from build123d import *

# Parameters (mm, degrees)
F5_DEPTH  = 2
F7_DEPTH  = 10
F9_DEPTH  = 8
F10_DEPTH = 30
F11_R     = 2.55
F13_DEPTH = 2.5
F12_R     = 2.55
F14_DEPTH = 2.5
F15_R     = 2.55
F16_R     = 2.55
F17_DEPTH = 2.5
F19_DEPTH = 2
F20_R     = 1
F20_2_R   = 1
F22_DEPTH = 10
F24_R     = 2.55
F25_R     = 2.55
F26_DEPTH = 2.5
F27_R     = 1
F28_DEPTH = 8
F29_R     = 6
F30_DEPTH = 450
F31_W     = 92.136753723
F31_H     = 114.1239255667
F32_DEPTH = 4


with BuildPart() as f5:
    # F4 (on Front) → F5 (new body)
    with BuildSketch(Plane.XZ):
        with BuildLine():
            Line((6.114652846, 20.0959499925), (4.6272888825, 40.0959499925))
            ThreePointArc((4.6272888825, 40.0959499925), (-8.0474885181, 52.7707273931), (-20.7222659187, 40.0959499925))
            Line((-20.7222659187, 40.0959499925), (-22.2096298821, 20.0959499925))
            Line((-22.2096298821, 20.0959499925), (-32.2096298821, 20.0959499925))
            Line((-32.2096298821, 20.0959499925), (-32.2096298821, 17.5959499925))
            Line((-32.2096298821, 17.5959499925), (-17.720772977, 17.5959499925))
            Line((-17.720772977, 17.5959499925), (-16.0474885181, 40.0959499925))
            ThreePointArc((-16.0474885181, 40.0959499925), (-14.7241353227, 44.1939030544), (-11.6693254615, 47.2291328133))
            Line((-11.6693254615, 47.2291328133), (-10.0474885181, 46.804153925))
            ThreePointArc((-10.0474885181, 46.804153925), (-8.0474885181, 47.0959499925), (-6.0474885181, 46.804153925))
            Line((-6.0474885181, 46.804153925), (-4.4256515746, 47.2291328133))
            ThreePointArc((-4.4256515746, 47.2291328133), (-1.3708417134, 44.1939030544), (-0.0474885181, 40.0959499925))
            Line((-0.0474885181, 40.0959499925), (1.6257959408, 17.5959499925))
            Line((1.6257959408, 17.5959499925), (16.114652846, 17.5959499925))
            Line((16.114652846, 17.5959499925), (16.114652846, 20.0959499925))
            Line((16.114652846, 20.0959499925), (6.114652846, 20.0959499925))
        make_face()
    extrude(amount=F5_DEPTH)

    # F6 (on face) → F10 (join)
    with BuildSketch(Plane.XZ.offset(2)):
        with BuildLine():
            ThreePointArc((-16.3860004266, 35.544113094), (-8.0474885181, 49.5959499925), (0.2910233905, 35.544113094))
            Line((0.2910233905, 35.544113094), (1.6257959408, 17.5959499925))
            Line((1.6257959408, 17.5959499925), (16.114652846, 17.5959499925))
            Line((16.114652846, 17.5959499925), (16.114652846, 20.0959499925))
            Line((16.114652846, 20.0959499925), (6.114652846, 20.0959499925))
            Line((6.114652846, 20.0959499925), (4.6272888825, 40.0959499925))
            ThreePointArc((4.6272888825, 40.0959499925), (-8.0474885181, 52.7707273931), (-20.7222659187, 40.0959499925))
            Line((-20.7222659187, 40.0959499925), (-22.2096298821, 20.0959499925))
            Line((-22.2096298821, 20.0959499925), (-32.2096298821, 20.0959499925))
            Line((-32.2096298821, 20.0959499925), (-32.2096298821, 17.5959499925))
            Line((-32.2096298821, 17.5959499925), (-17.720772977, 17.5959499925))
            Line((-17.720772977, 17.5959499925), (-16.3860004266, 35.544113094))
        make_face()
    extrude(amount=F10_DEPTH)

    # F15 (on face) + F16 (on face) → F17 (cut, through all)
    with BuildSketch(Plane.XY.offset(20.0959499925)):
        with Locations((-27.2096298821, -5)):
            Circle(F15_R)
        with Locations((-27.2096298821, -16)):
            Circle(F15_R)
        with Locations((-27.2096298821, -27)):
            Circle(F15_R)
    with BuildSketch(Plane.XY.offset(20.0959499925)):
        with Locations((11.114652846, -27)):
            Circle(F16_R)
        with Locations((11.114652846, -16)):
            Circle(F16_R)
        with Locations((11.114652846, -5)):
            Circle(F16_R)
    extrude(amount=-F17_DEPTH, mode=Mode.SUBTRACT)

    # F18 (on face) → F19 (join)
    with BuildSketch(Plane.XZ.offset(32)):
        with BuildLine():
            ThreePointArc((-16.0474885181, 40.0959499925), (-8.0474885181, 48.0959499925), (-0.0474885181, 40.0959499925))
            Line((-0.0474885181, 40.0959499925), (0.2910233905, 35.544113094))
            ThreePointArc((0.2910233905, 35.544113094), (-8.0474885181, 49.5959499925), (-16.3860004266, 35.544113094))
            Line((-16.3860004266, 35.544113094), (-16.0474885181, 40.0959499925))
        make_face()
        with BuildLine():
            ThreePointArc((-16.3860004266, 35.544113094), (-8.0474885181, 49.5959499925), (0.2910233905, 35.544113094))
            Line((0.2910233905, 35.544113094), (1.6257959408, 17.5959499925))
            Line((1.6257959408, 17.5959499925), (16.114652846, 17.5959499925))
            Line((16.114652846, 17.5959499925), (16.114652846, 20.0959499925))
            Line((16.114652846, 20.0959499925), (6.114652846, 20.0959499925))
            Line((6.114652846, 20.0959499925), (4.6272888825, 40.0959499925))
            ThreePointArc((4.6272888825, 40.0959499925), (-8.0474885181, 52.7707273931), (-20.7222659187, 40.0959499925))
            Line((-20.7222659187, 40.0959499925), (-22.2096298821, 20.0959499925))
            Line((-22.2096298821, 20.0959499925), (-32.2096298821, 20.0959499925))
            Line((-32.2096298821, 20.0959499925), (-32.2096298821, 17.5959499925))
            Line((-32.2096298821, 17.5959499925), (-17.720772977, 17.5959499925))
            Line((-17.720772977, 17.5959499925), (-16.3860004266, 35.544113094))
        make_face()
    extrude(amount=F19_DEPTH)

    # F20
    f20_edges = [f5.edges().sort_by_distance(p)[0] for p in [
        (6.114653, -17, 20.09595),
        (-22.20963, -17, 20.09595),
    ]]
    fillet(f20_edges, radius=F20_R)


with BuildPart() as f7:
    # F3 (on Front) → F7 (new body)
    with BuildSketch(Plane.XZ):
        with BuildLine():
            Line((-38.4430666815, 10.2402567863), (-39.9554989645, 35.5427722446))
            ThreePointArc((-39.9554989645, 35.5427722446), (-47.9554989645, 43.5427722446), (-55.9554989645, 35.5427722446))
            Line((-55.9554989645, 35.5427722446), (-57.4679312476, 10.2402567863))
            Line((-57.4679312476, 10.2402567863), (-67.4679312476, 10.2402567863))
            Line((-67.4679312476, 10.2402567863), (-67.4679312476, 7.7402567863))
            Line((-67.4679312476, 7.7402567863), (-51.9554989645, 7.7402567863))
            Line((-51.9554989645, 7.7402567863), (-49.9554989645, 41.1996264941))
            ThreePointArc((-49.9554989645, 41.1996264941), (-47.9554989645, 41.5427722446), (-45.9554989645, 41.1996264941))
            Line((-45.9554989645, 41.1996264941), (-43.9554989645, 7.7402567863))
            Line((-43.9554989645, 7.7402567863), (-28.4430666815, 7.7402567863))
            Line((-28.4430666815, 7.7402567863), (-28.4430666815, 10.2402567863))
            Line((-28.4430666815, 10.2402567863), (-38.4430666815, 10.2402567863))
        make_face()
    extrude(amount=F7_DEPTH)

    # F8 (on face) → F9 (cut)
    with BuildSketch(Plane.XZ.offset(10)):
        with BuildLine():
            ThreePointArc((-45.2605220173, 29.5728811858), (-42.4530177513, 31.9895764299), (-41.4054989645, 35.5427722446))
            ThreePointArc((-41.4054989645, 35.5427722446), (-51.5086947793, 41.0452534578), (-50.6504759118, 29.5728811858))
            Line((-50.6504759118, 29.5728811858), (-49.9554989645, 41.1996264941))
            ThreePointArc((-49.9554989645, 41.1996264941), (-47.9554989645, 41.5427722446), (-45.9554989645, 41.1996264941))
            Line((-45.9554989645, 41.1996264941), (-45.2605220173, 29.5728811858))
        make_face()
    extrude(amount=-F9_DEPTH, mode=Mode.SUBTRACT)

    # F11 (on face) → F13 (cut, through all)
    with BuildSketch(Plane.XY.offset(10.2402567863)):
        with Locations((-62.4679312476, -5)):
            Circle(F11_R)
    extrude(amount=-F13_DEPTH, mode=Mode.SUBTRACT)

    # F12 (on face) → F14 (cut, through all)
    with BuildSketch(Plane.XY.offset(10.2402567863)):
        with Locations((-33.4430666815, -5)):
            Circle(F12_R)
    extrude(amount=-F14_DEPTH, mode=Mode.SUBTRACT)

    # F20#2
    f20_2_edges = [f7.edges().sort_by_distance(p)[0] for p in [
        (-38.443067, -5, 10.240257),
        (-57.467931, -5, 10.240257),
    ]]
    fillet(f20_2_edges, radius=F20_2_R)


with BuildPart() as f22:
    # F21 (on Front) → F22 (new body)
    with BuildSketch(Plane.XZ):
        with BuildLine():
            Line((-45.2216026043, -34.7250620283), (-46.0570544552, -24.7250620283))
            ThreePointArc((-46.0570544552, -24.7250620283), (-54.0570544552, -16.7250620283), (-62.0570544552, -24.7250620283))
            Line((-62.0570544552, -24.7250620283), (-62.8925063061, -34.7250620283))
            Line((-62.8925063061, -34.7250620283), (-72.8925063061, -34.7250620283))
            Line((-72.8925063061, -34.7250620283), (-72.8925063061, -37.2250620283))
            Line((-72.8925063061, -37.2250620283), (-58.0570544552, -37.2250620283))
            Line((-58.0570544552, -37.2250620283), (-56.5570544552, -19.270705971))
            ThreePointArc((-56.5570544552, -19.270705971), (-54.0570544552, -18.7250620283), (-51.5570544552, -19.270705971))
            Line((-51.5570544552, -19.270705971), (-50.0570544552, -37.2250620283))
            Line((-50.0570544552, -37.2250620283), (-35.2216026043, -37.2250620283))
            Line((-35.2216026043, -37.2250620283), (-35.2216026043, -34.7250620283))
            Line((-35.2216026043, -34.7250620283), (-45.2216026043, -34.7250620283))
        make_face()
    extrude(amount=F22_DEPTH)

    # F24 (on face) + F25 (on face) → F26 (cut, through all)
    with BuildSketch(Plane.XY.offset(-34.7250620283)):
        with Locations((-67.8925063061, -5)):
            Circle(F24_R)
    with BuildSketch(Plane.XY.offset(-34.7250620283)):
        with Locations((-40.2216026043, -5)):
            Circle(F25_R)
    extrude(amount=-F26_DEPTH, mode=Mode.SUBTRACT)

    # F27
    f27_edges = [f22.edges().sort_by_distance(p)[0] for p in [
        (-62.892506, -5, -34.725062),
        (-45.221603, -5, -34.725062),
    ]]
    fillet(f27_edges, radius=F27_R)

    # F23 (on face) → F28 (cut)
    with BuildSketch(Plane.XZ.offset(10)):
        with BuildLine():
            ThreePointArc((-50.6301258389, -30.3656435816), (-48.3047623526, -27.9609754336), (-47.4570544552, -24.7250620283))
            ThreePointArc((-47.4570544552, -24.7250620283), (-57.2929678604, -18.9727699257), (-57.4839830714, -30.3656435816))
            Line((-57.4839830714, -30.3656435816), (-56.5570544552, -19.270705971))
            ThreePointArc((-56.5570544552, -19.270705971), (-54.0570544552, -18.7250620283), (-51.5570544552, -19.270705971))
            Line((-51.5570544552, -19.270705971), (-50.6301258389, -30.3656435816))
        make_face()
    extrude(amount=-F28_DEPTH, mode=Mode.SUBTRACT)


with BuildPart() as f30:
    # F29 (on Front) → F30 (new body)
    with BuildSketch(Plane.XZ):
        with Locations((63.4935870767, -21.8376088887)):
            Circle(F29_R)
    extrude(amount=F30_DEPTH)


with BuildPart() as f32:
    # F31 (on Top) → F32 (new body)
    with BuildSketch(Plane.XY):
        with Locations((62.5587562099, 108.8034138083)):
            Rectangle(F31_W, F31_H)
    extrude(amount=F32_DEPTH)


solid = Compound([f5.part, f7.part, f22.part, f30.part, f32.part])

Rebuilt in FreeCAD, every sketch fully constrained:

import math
import FreeCAD as App
import Part
import Sketcher

V = App.Vector


def edges_at(feature, points):
    """Names of the edges that pass closest to the given points."""
    edges = feature.Shape.Edges
    near = lambda p: min(range(len(edges)), key=lambda i: edges[i].distToShape(Part.Vertex(*p))[0])
    return sorted({f"Edge{near(p) + 1}" for p in points})

doc = App.newDocument("Part")
params = doc.addObject("Spreadsheet::Sheet", "Params")
for row, (alias, value) in enumerate([
    ("sketch1_radius", "7 mm"),
    ("sketch1_width", "10 mm"),
    ("sketch1_height", "2.5 mm"),
    ("pad1_length", "2 mm"),
    ("sketch2_radius", "9.5 mm"),
    ("sketch2_width", "10 mm"),
    ("sketch2_height", "2.5 mm"),
    ("pad2_length", "30 mm"),
    ("sketch3_diameter", "5.1 mm"),
    ("sketch4_radius", "8 mm"),
    ("sketch4_width", "10 mm"),
    ("sketch4_height", "2.5 mm"),
    ("pad3_length", "2 mm"),
    ("fillet_radius", "1 mm"),
    ("sketch5_radius", "8 mm"),
    ("sketch5_radius2", "6 mm"),
    ("sketch5_width", "10 mm"),
    ("sketch5_height", "2.5 mm"),
    ("pad4_length", "10 mm"),
    ("sketch6_radius", "6 mm"),
    ("sketch6_radius2", "6.55 mm"),
    ("pocket2_length", "8 mm"),
    ("sketch7_diameter", "5.1 mm"),
    ("sketch8_diameter", "5.1 mm"),
    ("fillet2_radius", "1 mm"),
    ("sketch9_radius", "8 mm"),
    ("sketch9_radius2", "6 mm"),
    ("sketch9_width", "10 mm"),
    ("sketch9_height", "2.5 mm"),
    ("pad5_length", "10 mm"),
    ("sketch10_diameter", "5.1 mm"),
    ("fillet3_radius", "1 mm"),
    ("sketch11_radius", "6 mm"),
    ("sketch11_radius2", "6.6 mm"),
    ("pocket6_length", "8 mm"),
    ("sketch12_diameter", "12 mm"),
    ("pad6_length", "450 mm"),
    ("pad7_length", "4 mm"),
], start=1):
    params.set(f"A{row}", alias)
    params.set(f"B{row}", "=" + value)
    params.setAlias(f"B{row}", alias)

body = doc.addObject("PartDesign::Body", "Body")

# Sketch on XZ plane
sketch1 = body.newObject("Sketcher::SketchObject", "Sketch")
sketch1.AttachmentSupport = (doc.getObject("XZ_Plane"), [""])
sketch1.MapMode = "FlatFace"
sketch1.addGeometry(Part.LineSegment(V(6.114653, 20.09595, 0), V(4.627289, 40.09595, 0)), False)
sketch1.addGeometry(Part.ArcOfCircle(Part.Circle(V(-8.047489, 40.09595, 0), V(0, 0, 1), 12.674777), math.radians(0), math.radians(180)), False)
sketch1.addGeometry(Part.LineSegment(V(-20.722266, 40.09595, 0), V(-22.20963, 20.09595, 0)), False)
sketch1.addGeometry(Part.LineSegment(V(-22.20963, 20.09595, 0), V(-32.20963, 20.09595, 0)), False)
sketch1.addGeometry(Part.LineSegment(V(-32.20963, 20.09595, 0), V(-32.20963, 17.59595, 0)), False)
sketch1.addGeometry(Part.LineSegment(V(-32.20963, 17.59595, 0), V(-17.720773, 17.59595, 0)), False)
sketch1.addGeometry(Part.LineSegment(V(-17.720773, 17.59595, 0), V(-16.047489, 40.09595, 0)), False)
sketch1.addGeometry(Part.ArcOfCircle(Part.Circle(V(-6.944524, 39.418979, 0), V(0, 0, 1), 9.128102), math.radians(121.172103), math.radians(175.746845)), False)
sketch1.addGeometry(Part.LineSegment(V(-11.669325, 47.229133, 0), V(-10.047489, 46.804154, 0)), False)
sketch1.addGeometry(Part.ArcOfCircle(Part.Circle(V(-8.047489, 40.09595, 0), V(0, 0, 1), 7), math.radians(73.39845), math.radians(106.60155)), False)
sketch1.addGeometry(Part.LineSegment(V(-6.047489, 46.804154, 0), V(-4.425652, 47.229133, 0)), False)
sketch1.addGeometry(Part.ArcOfCircle(Part.Circle(V(-9.150453, 39.418979, 0), V(0, 0, 1), 9.128102), math.radians(4.253155), math.radians(58.827897)), False)
sketch1.addGeometry(Part.LineSegment(V(-0.047489, 40.09595, 0), V(1.625796, 17.59595, 0)), False)
sketch1.addGeometry(Part.LineSegment(V(1.625796, 17.59595, 0), V(16.114653, 17.59595, 0)), False)
sketch1.addGeometry(Part.LineSegment(V(16.114653, 17.59595, 0), V(16.114653, 20.09595, 0)), False)
sketch1.addGeometry(Part.LineSegment(V(16.114653, 20.09595, 0), V(6.114653, 20.09595, 0)), False)
sketch1.addConstraint(Sketcher.Constraint("Coincident", 0, 2, 1, 1))
sketch1.addConstraint(Sketcher.Constraint("Coincident", 1, 2, 2, 1))
sketch1.addConstraint(Sketcher.Constraint("Coincident", 2, 2, 3, 1))
sketch1.addConstraint(Sketcher.Constraint("Coincident", 3, 2, 4, 1))
sketch1.addConstraint(Sketcher.Constraint("Coincident", 4, 2, 5, 1))
sketch1.addConstraint(Sketcher.Constraint("Coincident", 5, 2, 6, 1))
sketch1.addConstraint(Sketcher.Constraint("Tangent", 6, 2, 7, 2))
sketch1.addConstraint(Sketcher.Constraint("Coincident", 7, 1, 8, 1))
sketch1.addConstraint(Sketcher.Constraint("Coincident", 8, 2, 9, 2))
sketch1.addConstraint(Sketcher.Constraint("Coincident", 9, 1, 10, 1))
sketch1.addConstraint(Sketcher.Constraint("Coincident", 10, 2, 11, 2))
sketch1.addConstraint(Sketcher.Constraint("Tangent", 11, 1, 12, 1))
sketch1.addConstraint(Sketcher.Constraint("Coincident", 12, 2, 13, 1))
sketch1.addConstraint(Sketcher.Constraint("Coincident", 13, 2, 14, 1))
sketch1.addConstraint(Sketcher.Constraint("Coincident", 14, 2, 15, 1))
sketch1.addConstraint(Sketcher.Constraint("Coincident", 15, 2, 0, 1))
sketch1.addConstraint(Sketcher.Constraint("Horizontal", 3))
sketch1.addConstraint(Sketcher.Constraint("Vertical", 4))
sketch1.addConstraint(Sketcher.Constraint("Horizontal", 5))
sketch1.addConstraint(Sketcher.Constraint("Horizontal", 13))
sketch1.addConstraint(Sketcher.Constraint("Vertical", 14))
sketch1.addConstraint(Sketcher.Constraint("Horizontal", 15))
sketch1.addConstraint(Sketcher.Constraint("Coincident", 9, 3, 1, 3))
sketch1.addConstraint(Sketcher.Constraint("Equal", 7, 11))
sketch1.addConstraint(Sketcher.Constraint("Parallel", 2, 6))
sketch1.addConstraint(Sketcher.Constraint("Parallel", 0, 12))
sketch1.addConstraint(Sketcher.Constraint("Horizontal", 7, 3, 11, 3))
sketch1.addConstraint(Sketcher.Constraint("Horizontal", 9, 3, 0, 2))
sketch1.addConstraint(Sketcher.Constraint("Horizontal", 0, 2, 1, 2))
sketch1.addConstraint(Sketcher.Constraint("Horizontal", 1, 2, 6, 2))
sketch1.addConstraint(Sketcher.Constraint("Horizontal", 8, 2, 9, 1))
sketch1.addConstraint(Sketcher.Constraint("Horizontal", 7, 1, 10, 2))
sketch1.addConstraint(Sketcher.Constraint("Horizontal", 6, 2, 11, 1))
sketch1.addConstraint(Sketcher.Constraint("Horizontal", 5, 2, 12, 2))
sketch1.addConstraint(Sketcher.Constraint("Horizontal", 3, 2, 14, 2))
sketch1.addConstraint(Sketcher.Constraint("Equal", 5, 13))
sketch1.addConstraint(Sketcher.Constraint("Equal", 3, 15))
sketch1.addConstraint(Sketcher.Constraint("Radius", 9, 7.0))
sketch1.addConstraint(Sketcher.Constraint("DistanceX", 3, 2, 3, 1, 10.0))
sketch1.addConstraint(Sketcher.Constraint("DistanceY", 4, 2, 4, 1, 2.5))
sketch1.addConstraint(Sketcher.Constraint("DistanceY", 2, 2, 1, 2, 20.0))
sketch1.addConstraint(Sketcher.Constraint("DistanceX", 6, 2, 1, 3, 8.0))
sketch1.addConstraint(Sketcher.Constraint("DistanceX", 8, 2, 1, 3, 2.0))
sketch1.addConstraint(Sketcher.Constraint("Radius", 1, 12.674777))
sketch1.addConstraint(Sketcher.Constraint("Radius", 7, 9.128102))
sketch1.addConstraint(Sketcher.Constraint("DistanceX", 7, 1, 7, 3, 4.724801))
sketch1.addConstraint(Sketcher.Constraint("Distance", 0, 20.05523))
sketch1.addConstraint(Sketcher.Constraint("DistanceX", 1, 3, -1, 1, 8.047489))
sketch1.addConstraint(Sketcher.Constraint("DistanceY", -1, 1, 1, 3, 40.09595))
sketch1.setExpression("Constraints[37]", "Params.sketch1_radius")
sketch1.setExpression("Constraints[38]", "Params.sketch1_width")
sketch1.setExpression("Constraints[39]", "Params.sketch1_height")
pad1 = body.newObject("PartDesign::Pad", "Pad")
pad1.Profile = sketch1
pad1.setExpression("Length", "Params.pad1_length")

# Sketch on XZ plane
sketch2 = body.newObject("Sketcher::SketchObject", "Sketch001")
sketch2.AttachmentSupport = (doc.getObject("XZ_Plane"), [""])
sketch2.MapMode = "FlatFace"
sketch2.AttachmentOffset = App.Placement(V(0, 0, 2), App.Rotation())
sketch2.addGeometry(Part.ArcOfCircle(Part.Circle(V(-8.047489, 40.09595, 0), V(0, 0, 1), 9.5), math.radians(-28.629297), math.radians(208.629297)), False)
sketch2.addGeometry(Part.LineSegment(V(0.291023, 35.544113, 0), V(1.625796, 17.59595, 0)), False)
sketch2.addGeometry(Part.LineSegment(V(1.625796, 17.59595, 0), V(16.114653, 17.59595, 0)), False)
sketch2.addGeometry(Part.LineSegment(V(16.114653, 17.59595, 0), V(16.114653, 20.09595, 0)), False)
sketch2.addGeometry(Part.LineSegment(V(16.114653, 20.09595, 0), V(6.114653, 20.09595, 0)), False)
sketch2.addGeometry(Part.LineSegment(V(6.114653, 20.09595, 0), V(4.627289, 40.09595, 0)), False)
sketch2.addGeometry(Part.ArcOfCircle(Part.Circle(V(-8.047489, 40.09595, 0), V(0, 0, 1), 12.674777), math.radians(0), math.radians(180)), False)
sketch2.addGeometry(Part.LineSegment(V(-20.722266, 40.09595, 0), V(-22.20963, 20.09595, 0)), False)
sketch2.addGeometry(Part.LineSegment(V(-22.20963, 20.09595, 0), V(-32.20963, 20.09595, 0)), False)
sketch2.addGeometry(Part.LineSegment(V(-32.20963, 20.09595, 0), V(-32.20963, 17.59595, 0)), False)
sketch2.addGeometry(Part.LineSegment(V(-32.20963, 17.59595, 0), V(-17.720773, 17.59595, 0)), False)
sketch2.addGeometry(Part.LineSegment(V(-17.720773, 17.59595, 0), V(-16.386, 35.544113, 0)), False)
sketch2.addConstraint(Sketcher.Constraint("Coincident", 0, 1, 1, 1))
sketch2.addConstraint(Sketcher.Constraint("Coincident", 1, 2, 2, 1))
sketch2.addConstraint(Sketcher.Constraint("Coincident", 2, 2, 3, 1))
sketch2.addConstraint(Sketcher.Constraint("Coincident", 3, 2, 4, 1))
sketch2.addConstraint(Sketcher.Constraint("Coincident", 4, 2, 5, 1))
sketch2.addConstraint(Sketcher.Constraint("Coincident", 5, 2, 6, 1))
sketch2.addConstraint(Sketcher.Constraint("Coincident", 6, 2, 7, 1))
sketch2.addConstraint(Sketcher.Constraint("Coincident", 7, 2, 8, 1))
sketch2.addConstraint(Sketcher.Constraint("Coincident", 8, 2, 9, 1))
sketch2.addConstraint(Sketcher.Constraint("Coincident", 9, 2, 10, 1))
sketch2.addConstraint(Sketcher.Constraint("Coincident", 10, 2, 11, 1))
sketch2.addConstraint(Sketcher.Constraint("Coincident", 11, 2, 0, 2))
sketch2.addConstraint(Sketcher.Constraint("Horizontal", 2))
sketch2.addConstraint(Sketcher.Constraint("Vertical", 3))
sketch2.addConstraint(Sketcher.Constraint("Horizontal", 4))
sketch2.addConstraint(Sketcher.Constraint("Horizontal", 8))
sketch2.addConstraint(Sketcher.Constraint("Vertical", 9))
sketch2.addConstraint(Sketcher.Constraint("Horizontal", 10))
sketch2.addConstraint(Sketcher.Constraint("Coincident", 6, 3, 0, 3))
sketch2.addConstraint(Sketcher.Constraint("Parallel", 1, 5))
sketch2.addConstraint(Sketcher.Constraint("Parallel", 7, 11))
sketch2.addConstraint(Sketcher.Constraint("Horizontal", 6, 3, 5, 2))
sketch2.addConstraint(Sketcher.Constraint("Horizontal", 5, 2, 6, 2))
sketch2.addConstraint(Sketcher.Constraint("Horizontal", 4, 2, 7, 2))
sketch2.addConstraint(Sketcher.Constraint("Horizontal", 2, 2, 9, 2))
sketch2.addConstraint(Sketcher.Constraint("Horizontal", 0, 1, 11, 2))
sketch2.addConstraint(Sketcher.Constraint("Equal", 4, 8))
sketch2.addConstraint(Sketcher.Constraint("Equal", 2, 10))
sketch2.addConstraint(Sketcher.Constraint("Radius", 0, 9.5))
sketch2.addConstraint(Sketcher.Constraint("DistanceX", 4, 2, 4, 1, 10.0))
sketch2.addConstraint(Sketcher.Constraint("DistanceY", 3, 1, 3, 2, 2.5))
sketch2.addConstraint(Sketcher.Constraint("DistanceY", 3, 2, 0, 3, 20.0))
sketch2.addConstraint(Sketcher.Constraint("DistanceX", 11, 2, -1, 1, 16.386))
sketch2.addConstraint(Sketcher.Constraint("Radius", 6, 12.674777))
sketch2.addConstraint(Sketcher.Constraint("Distance", 5, 20.05523))
sketch2.addConstraint(Sketcher.Constraint("DistanceX", 2, 1, 2, 2, 14.488857))
sketch2.addConstraint(Sketcher.Constraint("DistanceY", -1, 1, 0, 3, 40.09595))
sketch2.setExpression("Constraints[28]", "Params.sketch2_radius")
sketch2.setExpression("Constraints[29]", "Params.sketch2_width")
sketch2.setExpression("Constraints[30]", "Params.sketch2_height")
pad2 = body.newObject("PartDesign::Pad", "Pad001")
pad2.Profile = sketch2
pad2.setExpression("Length", "Params.pad2_length")

# Sketch on XY plane
sketch3 = body.newObject("Sketcher::SketchObject", "Sketch002")
sketch3.AttachmentSupport = (doc.getObject("XY_Plane"), [""])
sketch3.MapMode = "FlatFace"
sketch3.AttachmentOffset = App.Placement(V(0, 0, 20.09595), App.Rotation())
sketch3.addGeometry(Part.Circle(V(-27.20963, -5, 0), V(0, 0, 1), 2.55), False)
sketch3.addGeometry(Part.Circle(V(-27.20963, -16, 0), V(0, 0, 1), 2.55), False)
sketch3.addGeometry(Part.Circle(V(-27.20963, -27, 0), V(0, 0, 1), 2.55), False)
sketch3.addGeometry(Part.Circle(V(11.114653, -27, 0), V(0, 0, 1), 2.55), False)
sketch3.addGeometry(Part.Circle(V(11.114653, -16, 0), V(0, 0, 1), 2.55), False)
sketch3.addGeometry(Part.Circle(V(11.114653, -5, 0), V(0, 0, 1), 2.55), False)
sketch3.addConstraint(Sketcher.Constraint("Equal", 0, 1))
sketch3.addConstraint(Sketcher.Constraint("Equal", 1, 2))
sketch3.addConstraint(Sketcher.Constraint("Equal", 2, 3))
sketch3.addConstraint(Sketcher.Constraint("Equal", 3, 4))
sketch3.addConstraint(Sketcher.Constraint("Equal", 4, 5))
sketch3.addConstraint(Sketcher.Constraint("Horizontal", 2, 3, 3, 3))
sketch3.addConstraint(Sketcher.Constraint("Horizontal", 1, 3, 4, 3))
sketch3.addConstraint(Sketcher.Constraint("Horizontal", 0, 3, 5, 3))
sketch3.addConstraint(Sketcher.Constraint("Vertical", 0, 3, 1, 3))
sketch3.addConstraint(Sketcher.Constraint("Vertical", 1, 3, 2, 3))
sketch3.addConstraint(Sketcher.Constraint("Vertical", 3, 3, 4, 3))
sketch3.addConstraint(Sketcher.Constraint("Vertical", 4, 3, 5, 3))
sketch3.addConstraint(Sketcher.Constraint("Diameter", 0, 5.1))
sketch3.addConstraint(Sketcher.Constraint("DistanceY", 0, 3, -1, 1, 5.0))
sketch3.addConstraint(Sketcher.Constraint("DistanceY", 1, 3, -1, 1, 16.0))
sketch3.addConstraint(Sketcher.Constraint("DistanceY", 2, 3, -1, 1, 27.0))
sketch3.addConstraint(Sketcher.Constraint("DistanceX", 0, 3, -1, 1, 27.20963))
sketch3.addConstraint(Sketcher.Constraint("DistanceX", -1, 1, 3, 3, 11.114653))
sketch3.setExpression("Constraints[12]", "Params.sketch3_diameter")
pocket1 = body.newObject("PartDesign::Pocket", "Pocket")
pocket1.Profile = sketch3
pocket1.Type = "ThroughAll"

# Sketch on XZ plane
sketch4 = body.newObject("Sketcher::SketchObject", "Sketch003")
sketch4.AttachmentSupport = (doc.getObject("XZ_Plane"), [""])
sketch4.MapMode = "FlatFace"
sketch4.AttachmentOffset = App.Placement(V(0, 0, 32), App.Rotation())
sketch4.addGeometry(Part.ArcOfCircle(Part.Circle(V(-8.047489, 40.09595, 0), V(0, 0, 1), 8), math.radians(0), math.radians(180)), False)
sketch4.addGeometry(Part.LineSegment(V(-0.047489, 40.09595, 0), V(0.291023, 35.544113, 0)), False)
sketch4.addGeometry(Part.LineSegment(V(0.291023, 35.544113, 0), V(1.625796, 17.59595, 0)), False)
sketch4.addGeometry(Part.LineSegment(V(1.625796, 17.59595, 0), V(16.114653, 17.59595, 0)), False)
sketch4.addGeometry(Part.LineSegment(V(16.114653, 17.59595, 0), V(16.114653, 20.09595, 0)), False)
sketch4.addGeometry(Part.LineSegment(V(16.114653, 20.09595, 0), V(6.114653, 20.09595, 0)), False)
sketch4.addGeometry(Part.LineSegment(V(6.114653, 20.09595, 0), V(4.627289, 40.09595, 0)), False)
sketch4.addGeometry(Part.ArcOfCircle(Part.Circle(V(-8.047489, 40.09595, 0), V(0, 0, 1), 12.674777), math.radians(0), math.radians(180)), False)
sketch4.addGeometry(Part.LineSegment(V(-20.722266, 40.09595, 0), V(-22.20963, 20.09595, 0)), False)
sketch4.addGeometry(Part.LineSegment(V(-22.20963, 20.09595, 0), V(-32.20963, 20.09595, 0)), False)
sketch4.addGeometry(Part.LineSegment(V(-32.20963, 20.09595, 0), V(-32.20963, 17.59595, 0)), False)
sketch4.addGeometry(Part.LineSegment(V(-32.20963, 17.59595, 0), V(-17.720773, 17.59595, 0)), False)
sketch4.addGeometry(Part.LineSegment(V(-17.720773, 17.59595, 0), V(-16.386, 35.544113, 0)), False)
sketch4.addGeometry(Part.LineSegment(V(-16.386, 35.544113, 0), V(-16.047489, 40.09595, 0)), False)
sketch4.addConstraint(Sketcher.Constraint("Coincident", 0, 1, 1, 1))
sketch4.addConstraint(Sketcher.Constraint("Coincident", 1, 2, 2, 1))
sketch4.addConstraint(Sketcher.Constraint("Coincident", 2, 2, 3, 1))
sketch4.addConstraint(Sketcher.Constraint("Coincident", 3, 2, 4, 1))
sketch4.addConstraint(Sketcher.Constraint("Coincident", 4, 2, 5, 1))
sketch4.addConstraint(Sketcher.Constraint("Coincident", 5, 2, 6, 1))
sketch4.addConstraint(Sketcher.Constraint("Coincident", 6, 2, 7, 1))
sketch4.addConstraint(Sketcher.Constraint("Coincident", 7, 2, 8, 1))
sketch4.addConstraint(Sketcher.Constraint("Coincident", 8, 2, 9, 1))
sketch4.addConstraint(Sketcher.Constraint("Coincident", 9, 2, 10, 1))
sketch4.addConstraint(Sketcher.Constraint("Coincident", 10, 2, 11, 1))
sketch4.addConstraint(Sketcher.Constraint("Coincident", 11, 2, 12, 1))
sketch4.addConstraint(Sketcher.Constraint("Coincident", 12, 2, 13, 1))
sketch4.addConstraint(Sketcher.Constraint("Coincident", 13, 2, 0, 2))
sketch4.addConstraint(Sketcher.Constraint("Horizontal", 3))
sketch4.addConstraint(Sketcher.Constraint("Vertical", 4))
sketch4.addConstraint(Sketcher.Constraint("Horizontal", 5))
sketch4.addConstraint(Sketcher.Constraint("Horizontal", 9))
sketch4.addConstraint(Sketcher.Constraint("Vertical", 10))
sketch4.addConstraint(Sketcher.Constraint("Horizontal", 11))
sketch4.addConstraint(Sketcher.Constraint("Coincident", 7, 3, 0, 3))
sketch4.addConstraint(Sketcher.Constraint("Parallel", 1, 2))
sketch4.addConstraint(Sketcher.Constraint("Parallel", 2, 6))
sketch4.addConstraint(Sketcher.Constraint("Parallel", 8, 12))
sketch4.addConstraint(Sketcher.Constraint("Parallel", 12, 13))
sketch4.addConstraint(Sketcher.Constraint("Horizontal", 7, 3, 0, 1))
sketch4.addConstraint(Sketcher.Constraint("Horizontal", 0, 1, 6, 2))
sketch4.addConstraint(Sketcher.Constraint("Horizontal", 6, 2, 7, 2))
sketch4.addConstraint(Sketcher.Constraint("Horizontal", 5, 2, 8, 2))
sketch4.addConstraint(Sketcher.Constraint("Horizontal", 3, 2, 10, 2))
sketch4.addConstraint(Sketcher.Constraint("Horizontal", 1, 2, 12, 2))
sketch4.addConstraint(Sketcher.Constraint("Horizontal", 7, 2, 13, 2))
sketch4.addConstraint(Sketcher.Constraint("Equal", 5, 9))
sketch4.addConstraint(Sketcher.Constraint("Equal", 3, 11))
sketch4.addConstraint(Sketcher.Constraint("Radius", 0, 8.0))
sketch4.addConstraint(Sketcher.Constraint("DistanceX", 5, 2, 5, 1, 10.0))
sketch4.addConstraint(Sketcher.Constraint("DistanceY", 4, 1, 4, 2, 2.5))
sketch4.addConstraint(Sketcher.Constraint("DistanceY", 4, 2, 0, 1, 20.0))
sketch4.addConstraint(Sketcher.Constraint("DistanceX", 12, 2, -1, 1, 16.386))
sketch4.addConstraint(Sketcher.Constraint("Radius", 7, 12.674777))
sketch4.addConstraint(Sketcher.Constraint("Distance", 6, 20.05523))
sketch4.addConstraint(Sketcher.Constraint("DistanceX", 0, 3, -1, 1, 8.047489))
sketch4.addConstraint(Sketcher.Constraint("DistanceY", -1, 1, 0, 3, 40.09595))
sketch4.setExpression("Constraints[34]", "Params.sketch4_radius")
sketch4.setExpression("Constraints[35]", "Params.sketch4_width")
sketch4.setExpression("Constraints[36]", "Params.sketch4_height")
pad3 = body.newObject("PartDesign::Pad", "Pad002")
pad3.Profile = sketch4
pad3.setExpression("Length", "Params.pad3_length")
doc.recompute()

fillet = body.newObject("PartDesign::Fillet", "Fillet")
fillet.Base = (pad3, edges_at(pad3, [(6.115, -17, 20.096), (-22.21, -17, 20.096)]))
fillet.setExpression("Radius", "Params.fillet_radius")
body2 = doc.addObject("PartDesign::Body", "Body001")

# Sketch on XZ plane
sketch5 = body2.newObject("Sketcher::SketchObject", "Sketch004")
sketch5.AttachmentSupport = (doc.getObject("XZ_Plane001"), [""])
sketch5.MapMode = "FlatFace"
sketch5.addGeometry(Part.LineSegment(V(-38.443067, 10.240257, 0), V(-39.955499, 35.542772, 0)), False)
sketch5.addGeometry(Part.ArcOfCircle(Part.Circle(V(-47.955499, 35.542772, 0), V(0, 0, 1), 8), math.radians(0), math.radians(180)), False)
sketch5.addGeometry(Part.LineSegment(V(-55.955499, 35.542772, 0), V(-57.467931, 10.240257, 0)), False)
sketch5.addGeometry(Part.LineSegment(V(-57.467931, 10.240257, 0), V(-67.467931, 10.240257, 0)), False)
sketch5.addGeometry(Part.LineSegment(V(-67.467931, 10.240257, 0), V(-67.467931, 7.740257, 0)), False)
sketch5.addGeometry(Part.LineSegment(V(-67.467931, 7.740257, 0), V(-51.955499, 7.740257, 0)), False)
sketch5.addGeometry(Part.LineSegment(V(-51.955499, 7.740257, 0), V(-49.955499, 41.199626, 0)), False)
sketch5.addGeometry(Part.ArcOfCircle(Part.Circle(V(-47.955499, 35.542772, 0), V(0, 0, 1), 6), math.radians(70.528779), math.radians(109.471221)), False)
sketch5.addGeometry(Part.LineSegment(V(-45.955499, 41.199626, 0), V(-43.955499, 7.740257, 0)), False)
sketch5.addGeometry(Part.LineSegment(V(-43.955499, 7.740257, 0), V(-28.443067, 7.740257, 0)), False)
sketch5.addGeometry(Part.LineSegment(V(-28.443067, 7.740257, 0), V(-28.443067, 10.240257, 0)), False)
sketch5.addGeometry(Part.LineSegment(V(-28.443067, 10.240257, 0), V(-38.443067, 10.240257, 0)), False)
sketch5.addConstraint(Sketcher.Constraint("Coincident", 0, 2, 1, 1))
sketch5.addConstraint(Sketcher.Constraint("Coincident", 1, 2, 2, 1))
sketch5.addConstraint(Sketcher.Constraint("Coincident", 2, 2, 3, 1))
sketch5.addConstraint(Sketcher.Constraint("Coincident", 3, 2, 4, 1))
sketch5.addConstraint(Sketcher.Constraint("Coincident", 4, 2, 5, 1))
sketch5.addConstraint(Sketcher.Constraint("Coincident", 5, 2, 6, 1))
sketch5.addConstraint(Sketcher.Constraint("Coincident", 6, 2, 7, 2))
sketch5.addConstraint(Sketcher.Constraint("Coincident", 7, 1, 8, 1))
sketch5.addConstraint(Sketcher.Constraint("Coincident", 8, 2, 9, 1))
sketch5.addConstraint(Sketcher.Constraint("Coincident", 9, 2, 10, 1))
sketch5.addConstraint(Sketcher.Constraint("Coincident", 10, 2, 11, 1))
sketch5.addConstraint(Sketcher.Constraint("Coincident", 11, 2, 0, 1))
sketch5.addConstraint(Sketcher.Constraint("Horizontal", 3))
sketch5.addConstraint(Sketcher.Constraint("Vertical", 4))
sketch5.addConstraint(Sketcher.Constraint("Horizontal", 5))
sketch5.addConstraint(Sketcher.Constraint("Horizontal", 9))
sketch5.addConstraint(Sketcher.Constraint("Vertical", 10))
sketch5.addConstraint(Sketcher.Constraint("Horizontal", 11))
sketch5.addConstraint(Sketcher.Constraint("Coincident", 7, 3, 1, 3))
sketch5.addConstraint(Sketcher.Constraint("Parallel", 2, 6))
sketch5.addConstraint(Sketcher.Constraint("Parallel", 0, 8))
sketch5.addConstraint(Sketcher.Constraint("Horizontal", 7, 3, 0, 2))
sketch5.addConstraint(Sketcher.Constraint("Horizontal", 0, 2, 1, 2))
sketch5.addConstraint(Sketcher.Constraint("Horizontal", 6, 2, 7, 1))
sketch5.addConstraint(Sketcher.Constraint("Horizontal", 5, 2, 8, 2))
sketch5.addConstraint(Sketcher.Constraint("Horizontal", 3, 2, 10, 2))
sketch5.addConstraint(Sketcher.Constraint("Equal", 5, 9))
sketch5.addConstraint(Sketcher.Constraint("Equal", 3, 11))
sketch5.addConstraint(Sketcher.Constraint("Radius", 1, 8.0))
sketch5.addConstraint(Sketcher.Constraint("Radius", 7, 6.0))
sketch5.addConstraint(Sketcher.Constraint("DistanceX", 3, 2, 3, 1, 10.0))
sketch5.addConstraint(Sketcher.Constraint("DistanceY", 4, 2, 4, 1, 2.5))
sketch5.addConstraint(Sketcher.Constraint("DistanceX", 5, 2, 7, 3, 4.0))
sketch5.addConstraint(Sketcher.Constraint("DistanceX", 6, 2, 1, 3, 2.0))
sketch5.addConstraint(Sketcher.Constraint("DistanceX", 1, 3, -1, 1, 47.955499))
sketch5.addConstraint(Sketcher.Constraint("Distance", 6, 33.51909))
sketch5.addConstraint(Sketcher.Constraint("DistanceY", -1, 1, 1, 3, 35.542772))
sketch5.setExpression("Constraints[28]", "Params.sketch5_radius")
sketch5.setExpression("Constraints[29]", "Params.sketch5_radius2")
sketch5.setExpression("Constraints[30]", "Params.sketch5_width")
sketch5.setExpression("Constraints[31]", "Params.sketch5_height")
pad4 = body2.newObject("PartDesign::Pad", "Pad003")
pad4.Profile = sketch5
pad4.setExpression("Length", "Params.pad4_length")

# Sketch on XZ plane
sketch6 = body2.newObject("Sketcher::SketchObject", "Sketch005")
sketch6.AttachmentSupport = (doc.getObject("XZ_Plane001"), [""])
sketch6.MapMode = "FlatFace"
sketch6.AttachmentOffset = App.Placement(V(0, 0, 10), App.Rotation())
sketch6.addGeometry(Part.ArcOfCircle(Part.Circle(V(-47.955499, 35.542772, 0), V(0, 0, 1), 6.55), math.radians(-65.704243), math.radians(0)), False)
sketch6.addGeometry(Part.ArcOfCircle(Part.Circle(V(-47.955499, 35.542772, 0), V(0, 0, 1), 6.55), math.radians(0), math.radians(245.704243)), False)
sketch6.addGeometry(Part.LineSegment(V(-50.650476, 29.572881, 0), V(-49.955499, 41.199626, 0)), False)
sketch6.addGeometry(Part.ArcOfCircle(Part.Circle(V(-47.955499, 35.542772, 0), V(0, 0, 1), 6), math.radians(70.528779), math.radians(109.471221)), False)
sketch6.addGeometry(Part.LineSegment(V(-45.955499, 41.199626, 0), V(-45.260522, 29.572881, 0)), False)
sketch6.addConstraint(Sketcher.Constraint("Tangent", 0, 2, 1, 1))
sketch6.addConstraint(Sketcher.Constraint("Coincident", 1, 2, 2, 1))
sketch6.addConstraint(Sketcher.Constraint("Coincident", 2, 2, 3, 2))
sketch6.addConstraint(Sketcher.Constraint("Coincident", 3, 1, 4, 1))
sketch6.addConstraint(Sketcher.Constraint("Coincident", 4, 2, 0, 1))
sketch6.addConstraint(Sketcher.Constraint("Coincident", 3, 3, 0, 3))
sketch6.addConstraint(Sketcher.Constraint("Equal", 0, 1))
sketch6.addConstraint(Sketcher.Constraint("Horizontal", 3, 3, 0, 2))
sketch6.addConstraint(Sketcher.Constraint("Horizontal", 2, 2, 3, 1))
sketch6.addConstraint(Sketcher.Constraint("Horizontal", 1, 2, 4, 2))
sketch6.addConstraint(Sketcher.Constraint("Radius", 3, 6.0))
sketch6.addConstraint(Sketcher.Constraint("Radius", 0, 6.55))
sketch6.addConstraint(Sketcher.Constraint("DistanceX", 2, 2, 0, 3, 2.0))
sketch6.addConstraint(Sketcher.Constraint("DistanceX", 0, 3, -1, 1, 47.955499))
sketch6.addConstraint(Sketcher.Constraint("DistanceY", -1, 1, 1, 2, 29.572881))
sketch6.addConstraint(Sketcher.Constraint("DistanceY", 1, 2, 3, 3, 5.969891))
sketch6.setExpression("Constraints[10]", "Params.sketch6_radius")
sketch6.setExpression("Constraints[11]", "Params.sketch6_radius2")
pocket2 = body2.newObject("PartDesign::Pocket", "Pocket001")
pocket2.Profile = sketch6
pocket2.setExpression("Length", "Params.pocket2_length")

# Sketch on XY plane
sketch7 = body2.newObject("Sketcher::SketchObject", "Sketch006")
sketch7.AttachmentSupport = (doc.getObject("XY_Plane001"), [""])
sketch7.MapMode = "FlatFace"
sketch7.AttachmentOffset = App.Placement(V(0, 0, 10.240257), App.Rotation())
sketch7.addGeometry(Part.Circle(V(-62.467931, -5, 0), V(0, 0, 1), 2.55), False)
sketch7.addConstraint(Sketcher.Constraint("Diameter", 0, 5.1))
sketch7.addConstraint(Sketcher.Constraint("DistanceY", 0, 3, -1, 1, 5.0))
sketch7.addConstraint(Sketcher.Constraint("DistanceX", 0, 3, -1, 1, 62.467931))
sketch7.setExpression("Constraints[0]", "Params.sketch7_diameter")
pocket3 = body2.newObject("PartDesign::Pocket", "Pocket002")
pocket3.Profile = sketch7
pocket3.Type = "ThroughAll"

# Sketch on XY plane
sketch8 = body2.newObject("Sketcher::SketchObject", "Sketch007")
sketch8.AttachmentSupport = (doc.getObject("XY_Plane001"), [""])
sketch8.MapMode = "FlatFace"
sketch8.AttachmentOffset = App.Placement(V(0, 0, 10.240257), App.Rotation())
sketch8.addGeometry(Part.Circle(V(-33.443067, -5, 0), V(0, 0, 1), 2.55), False)
sketch8.addConstraint(Sketcher.Constraint("Diameter", 0, 5.1))
sketch8.addConstraint(Sketcher.Constraint("DistanceY", 0, 3, -1, 1, 5.0))
sketch8.addConstraint(Sketcher.Constraint("DistanceX", 0, 3, -1, 1, 33.443067))
sketch8.setExpression("Constraints[0]", "Params.sketch8_diameter")
pocket4 = body2.newObject("PartDesign::Pocket", "Pocket003")
pocket4.Profile = sketch8
pocket4.Type = "ThroughAll"
doc.recompute()

fillet2 = body2.newObject("PartDesign::Fillet", "Fillet001")
fillet2.Base = (pocket4, edges_at(pocket4, [(-38.443, -5, 10.24), (-57.468, -5, 10.24)]))
fillet2.setExpression("Radius", "Params.fillet2_radius")
body3 = doc.addObject("PartDesign::Body", "Body002")

# Sketch on XZ plane
sketch9 = body3.newObject("Sketcher::SketchObject", "Sketch008")
sketch9.AttachmentSupport = (doc.getObject("XZ_Plane002"), [""])
sketch9.MapMode = "FlatFace"
sketch9.addGeometry(Part.LineSegment(V(-45.221603, -34.725062, 0), V(-46.057054, -24.725062, 0)), False)
sketch9.addGeometry(Part.ArcOfCircle(Part.Circle(V(-54.057054, -24.725062, 0), V(0, 0, 1), 8), math.radians(0), math.radians(180)), False)
sketch9.addGeometry(Part.LineSegment(V(-62.057054, -24.725062, 0), V(-62.892506, -34.725062, 0)), False)
sketch9.addGeometry(Part.LineSegment(V(-62.892506, -34.725062, 0), V(-72.892506, -34.725062, 0)), False)
sketch9.addGeometry(Part.LineSegment(V(-72.892506, -34.725062, 0), V(-72.892506, -37.225062, 0)), False)
sketch9.addGeometry(Part.LineSegment(V(-72.892506, -37.225062, 0), V(-58.057054, -37.225062, 0)), False)
sketch9.addGeometry(Part.LineSegment(V(-58.057054, -37.225062, 0), V(-56.557054, -19.270706, 0)), False)
sketch9.addGeometry(Part.ArcOfCircle(Part.Circle(V(-54.057054, -24.725062, 0), V(0, 0, 1), 6), math.radians(65.375682), math.radians(114.624318)), False)
sketch9.addGeometry(Part.LineSegment(V(-51.557054, -19.270706, 0), V(-50.057054, -37.225062, 0)), False)
sketch9.addGeometry(Part.LineSegment(V(-50.057054, -37.225062, 0), V(-35.221603, -37.225062, 0)), False)
sketch9.addGeometry(Part.LineSegment(V(-35.221603, -37.225062, 0), V(-35.221603, -34.725062, 0)), False)
sketch9.addGeometry(Part.LineSegment(V(-35.221603, -34.725062, 0), V(-45.221603, -34.725062, 0)), False)
sketch9.addConstraint(Sketcher.Constraint("Coincident", 0, 2, 1, 1))
sketch9.addConstraint(Sketcher.Constraint("Coincident", 1, 2, 2, 1))
sketch9.addConstraint(Sketcher.Constraint("Coincident", 2, 2, 3, 1))
sketch9.addConstraint(Sketcher.Constraint("Coincident", 3, 2, 4, 1))
sketch9.addConstraint(Sketcher.Constraint("Coincident", 4, 2, 5, 1))
sketch9.addConstraint(Sketcher.Constraint("Coincident", 5, 2, 6, 1))
sketch9.addConstraint(Sketcher.Constraint("Coincident", 6, 2, 7, 2))
sketch9.addConstraint(Sketcher.Constraint("Coincident", 7, 1, 8, 1))
sketch9.addConstraint(Sketcher.Constraint("Coincident", 8, 2, 9, 1))
sketch9.addConstraint(Sketcher.Constraint("Coincident", 9, 2, 10, 1))
sketch9.addConstraint(Sketcher.Constraint("Coincident", 10, 2, 11, 1))
sketch9.addConstraint(Sketcher.Constraint("Coincident", 11, 2, 0, 1))
sketch9.addConstraint(Sketcher.Constraint("Horizontal", 3))
sketch9.addConstraint(Sketcher.Constraint("Vertical", 4))
sketch9.addConstraint(Sketcher.Constraint("Horizontal", 5))
sketch9.addConstraint(Sketcher.Constraint("Horizontal", 9))
sketch9.addConstraint(Sketcher.Constraint("Vertical", 10))
sketch9.addConstraint(Sketcher.Constraint("Horizontal", 11))
sketch9.addConstraint(Sketcher.Constraint("Coincident", 7, 3, 1, 3))
sketch9.addConstraint(Sketcher.Constraint("Parallel", 2, 6))
sketch9.addConstraint(Sketcher.Constraint("Parallel", 0, 8))
sketch9.addConstraint(Sketcher.Constraint("Horizontal", 7, 3, 0, 2))
sketch9.addConstraint(Sketcher.Constraint("Horizontal", 0, 2, 1, 2))
sketch9.addConstraint(Sketcher.Constraint("Horizontal", 6, 2, 7, 1))
sketch9.addConstraint(Sketcher.Constraint("Horizontal", 5, 2, 8, 2))
sketch9.addConstraint(Sketcher.Constraint("Horizontal", 3, 2, 10, 2))
sketch9.addConstraint(Sketcher.Constraint("Equal", 5, 9))
sketch9.addConstraint(Sketcher.Constraint("Equal", 3, 11))
sketch9.addConstraint(Sketcher.Constraint("Radius", 1, 8.0))
sketch9.addConstraint(Sketcher.Constraint("Radius", 7, 6.0))
sketch9.addConstraint(Sketcher.Constraint("DistanceX", 3, 2, 3, 1, 10.0))
sketch9.addConstraint(Sketcher.Constraint("DistanceY", 4, 2, 4, 1, 2.5))
sketch9.addConstraint(Sketcher.Constraint("DistanceY", 2, 2, 1, 2, 10.0))
sketch9.addConstraint(Sketcher.Constraint("DistanceX", 5, 2, 1, 3, 4.0))
sketch9.addConstraint(Sketcher.Constraint("DistanceX", 6, 2, 7, 1, 5.0))
sketch9.addConstraint(Sketcher.Constraint("DistanceX", 1, 3, -1, 1, 54.057054))
sketch9.addConstraint(Sketcher.Constraint("DistanceY", 1, 3, -1, 1, 24.725062))
sketch9.setExpression("Constraints[28]", "Params.sketch9_radius")
sketch9.setExpression("Constraints[29]", "Params.sketch9_radius2")
sketch9.setExpression("Constraints[30]", "Params.sketch9_width")
sketch9.setExpression("Constraints[31]", "Params.sketch9_height")
pad5 = body3.newObject("PartDesign::Pad", "Pad004")
pad5.Profile = sketch9
pad5.setExpression("Length", "Params.pad5_length")

# Sketch on XY plane
sketch10 = body3.newObject("Sketcher::SketchObject", "Sketch009")
sketch10.AttachmentSupport = (doc.getObject("XY_Plane002"), [""])
sketch10.MapMode = "FlatFace"
sketch10.AttachmentOffset = App.Placement(V(0, 0, -34.725062), App.Rotation())
sketch10.addGeometry(Part.Circle(V(-67.892506, -5, 0), V(0, 0, 1), 2.55), False)
sketch10.addGeometry(Part.Circle(V(-40.221603, -5, 0), V(0, 0, 1), 2.55), False)
sketch10.addConstraint(Sketcher.Constraint("Equal", 0, 1))
sketch10.addConstraint(Sketcher.Constraint("Horizontal", 0, 3, 1, 3))
sketch10.addConstraint(Sketcher.Constraint("Diameter", 0, 5.1))
sketch10.addConstraint(Sketcher.Constraint("DistanceY", 0, 3, -1, 1, 5.0))
sketch10.addConstraint(Sketcher.Constraint("DistanceX", 0, 3, -1, 1, 67.892506))
sketch10.addConstraint(Sketcher.Constraint("DistanceX", 1, 3, -1, 1, 40.221603))
sketch10.setExpression("Constraints[2]", "Params.sketch10_diameter")
pocket5 = body3.newObject("PartDesign::Pocket", "Pocket004")
pocket5.Profile = sketch10
pocket5.Type = "ThroughAll"
doc.recompute()

fillet3 = body3.newObject("PartDesign::Fillet", "Fillet002")
fillet3.Base = (pocket5, edges_at(pocket5, [(-62.893, -5, -34.725), (-45.222, -5, -34.725)]))
fillet3.setExpression("Radius", "Params.fillet3_radius")

# Sketch on XZ plane
sketch11 = body3.newObject("Sketcher::SketchObject", "Sketch010")
sketch11.AttachmentSupport = (doc.getObject("XZ_Plane002"), [""])
sketch11.MapMode = "FlatFace"
sketch11.AttachmentOffset = App.Placement(V(0, 0, 10), App.Rotation())
sketch11.addGeometry(Part.ArcOfCircle(Part.Circle(V(-54.057054, -24.725062, 0), V(0, 0, 1), 6.6), math.radians(-58.719277), math.radians(238.719277)), False)
sketch11.addGeometry(Part.LineSegment(V(-57.483983, -30.365644, 0), V(-56.557054, -19.270706, 0)), False)
sketch11.addGeometry(Part.ArcOfCircle(Part.Circle(V(-54.057054, -24.725062, 0), V(0, 0, 1), 6), math.radians(65.375682), math.radians(114.624318)), False)
sketch11.addGeometry(Part.LineSegment(V(-51.557054, -19.270706, 0), V(-50.630126, -30.365644, 0)), False)
sketch11.addConstraint(Sketcher.Constraint("Coincident", 0, 2, 1, 1))
sketch11.addConstraint(Sketcher.Constraint("Coincident", 1, 2, 2, 2))
sketch11.addConstraint(Sketcher.Constraint("Coincident", 2, 1, 3, 1))
sketch11.addConstraint(Sketcher.Constraint("Coincident", 3, 2, 0, 1))
sketch11.addConstraint(Sketcher.Constraint("Coincident", 2, 3, 0, 3))
sketch11.addConstraint(Sketcher.Constraint("Horizontal", 1, 2, 2, 1))
sketch11.addConstraint(Sketcher.Constraint("Horizontal", 0, 2, 3, 2))
sketch11.addConstraint(Sketcher.Constraint("Radius", 2, 6.0))
sketch11.addConstraint(Sketcher.Constraint("Radius", 0, 6.6))
sketch11.addConstraint(Sketcher.Constraint("DistanceX", 1, 2, 2, 1, 5.0))
sketch11.addConstraint(Sketcher.Constraint("Distance", 1, 11.13359))
sketch11.addConstraint(Sketcher.Constraint("DistanceX", 0, 3, -1, 1, 54.057054))
sketch11.addConstraint(Sketcher.Constraint("DistanceY", 0, 3, -1, 1, 24.725062))
sketch11.setExpression("Constraints[7]", "Params.sketch11_radius")
sketch11.setExpression("Constraints[8]", "Params.sketch11_radius2")
pocket6 = body3.newObject("PartDesign::Pocket", "Pocket005")
pocket6.Profile = sketch11
pocket6.setExpression("Length", "Params.pocket6_length")
body4 = doc.addObject("PartDesign::Body", "Body003")

# Sketch on XZ plane
sketch12 = body4.newObject("Sketcher::SketchObject", "Sketch011")
sketch12.AttachmentSupport = (doc.getObject("XZ_Plane003"), [""])
sketch12.MapMode = "FlatFace"
sketch12.addGeometry(Part.Circle(V(63.493587, -21.837609, 0), V(0, 0, 1), 6), False)
sketch12.addConstraint(Sketcher.Constraint("Diameter", 0, 12.0))
sketch12.addConstraint(Sketcher.Constraint("DistanceY", 0, 3, -1, 1, 21.837609))
sketch12.addConstraint(Sketcher.Constraint("DistanceX", -1, 1, 0, 3, 63.493587))
sketch12.setExpression("Constraints[0]", "Params.sketch12_diameter")
pad6 = body4.newObject("PartDesign::Pad", "Pad005")
pad6.Profile = sketch12
pad6.setExpression("Length", "Params.pad6_length")
body5 = doc.addObject("PartDesign::Body", "Body004")

# Sketch on XY plane
sketch13 = body5.newObject("Sketcher::SketchObject", "Sketch012")
sketch13.AttachmentSupport = (doc.getObject("XY_Plane004"), [""])
sketch13.MapMode = "FlatFace"
sketch13.addGeometry(Part.LineSegment(V(16.490379, 165.865377, 0), V(16.490379, 51.741451, 0)), False)
sketch13.addGeometry(Part.LineSegment(V(16.490379, 51.741451, 0), V(108.627133, 51.741451, 0)), False)
sketch13.addGeometry(Part.LineSegment(V(108.627133, 51.741451, 0), V(108.627133, 165.865377, 0)), False)
sketch13.addGeometry(Part.LineSegment(V(108.627133, 165.865377, 0), V(16.490379, 165.865377, 0)), False)
sketch13.addConstraint(Sketcher.Constraint("Coincident", 0, 2, 1, 1))
sketch13.addConstraint(Sketcher.Constraint("Coincident", 1, 2, 2, 1))
sketch13.addConstraint(Sketcher.Constraint("Coincident", 2, 2, 3, 1))
sketch13.addConstraint(Sketcher.Constraint("Coincident", 3, 2, 0, 1))
sketch13.addConstraint(Sketcher.Constraint("Vertical", 0))
sketch13.addConstraint(Sketcher.Constraint("Horizontal", 1))
sketch13.addConstraint(Sketcher.Constraint("Vertical", 2))
sketch13.addConstraint(Sketcher.Constraint("Horizontal", 3))
sketch13.addConstraint(Sketcher.Constraint("DistanceX", 1, 1, 1, 2, 92.136754))
sketch13.addConstraint(Sketcher.Constraint("DistanceY", 0, 2, 0, 1, 114.123926))
sketch13.addConstraint(Sketcher.Constraint("DistanceX", -1, 1, 0, 2, 16.490379))
sketch13.addConstraint(Sketcher.Constraint("DistanceY", -1, 1, 0, 2, 51.741451))
pad7 = body5.newObject("PartDesign::Pad", "Pad006")
pad7.Profile = sketch13
pad7.setExpression("Length", "Params.pad7_length")

doc.recompute()
